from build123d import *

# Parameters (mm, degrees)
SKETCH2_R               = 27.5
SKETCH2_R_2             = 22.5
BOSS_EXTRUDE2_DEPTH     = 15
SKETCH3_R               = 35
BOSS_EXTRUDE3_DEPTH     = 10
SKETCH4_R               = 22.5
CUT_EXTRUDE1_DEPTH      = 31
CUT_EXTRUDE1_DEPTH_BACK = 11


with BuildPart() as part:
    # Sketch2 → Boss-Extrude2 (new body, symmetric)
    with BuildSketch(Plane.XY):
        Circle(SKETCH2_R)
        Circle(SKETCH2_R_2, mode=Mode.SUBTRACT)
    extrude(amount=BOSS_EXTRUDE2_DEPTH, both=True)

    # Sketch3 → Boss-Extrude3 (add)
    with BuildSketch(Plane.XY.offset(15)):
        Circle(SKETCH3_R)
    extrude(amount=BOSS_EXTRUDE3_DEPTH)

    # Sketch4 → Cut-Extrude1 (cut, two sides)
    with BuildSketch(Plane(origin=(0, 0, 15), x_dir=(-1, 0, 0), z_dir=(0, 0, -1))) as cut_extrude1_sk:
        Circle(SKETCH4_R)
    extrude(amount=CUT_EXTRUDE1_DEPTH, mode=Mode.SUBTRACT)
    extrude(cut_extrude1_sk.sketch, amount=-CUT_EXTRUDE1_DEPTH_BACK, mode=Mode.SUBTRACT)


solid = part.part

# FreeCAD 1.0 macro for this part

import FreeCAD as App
import Part
import Sketcher
Q = App.Units.Quantity

doc = App.newDocument("Part")
params = doc.addObject("Spreadsheet::Sheet", "Params")
for row, (alias, value) in enumerate([
    ("sketch1_diameter", "55 mm"),
    ("sketch1_diameter2", "45 mm"),
    ("pad1_length", "30 mm"),
    ("sketch2_diameter", "70 mm"),
    ("pad2_length", "10 mm"),
    ("sketch3_diameter", "45 mm"),
], start=1):
    params.set(f"A{row}", alias)
    params.set(f"B{row}", "=" + value)
    params.setAlias(f"B{row}", alias)

body = doc.addObject("PartDesign::Body", "Body")

# Sketch on XY plane
sketch1 = body.newObject("Sketcher::SketchObject", "Sketch")
sketch1.AttachmentSupport = (doc.getObject("XY_Plane"), [""])
sketch1.MapMode = "FlatFace"
sketch1.addGeometry(Part.Circle(App.Vector(0, 0, 0), App.Vector(0, 0, 1), 28), False)
sketch1.addGeometry(Part.Circle(App.Vector(0, 0, 0), App.Vector(0, 0, 1), 22), False)
sketch1.addConstraint(Sketcher.Constraint("Coincident", 0, 3, -1, 1))
sketch1.addConstraint(Sketcher.Constraint("Coincident", 1, 3, -1, 1))
sketch1.addConstraint(Sketcher.Constraint("Diameter", 0, Q("55 mm")))
sketch1.addConstraint(Sketcher.Constraint("Diameter", 1, Q("45 mm")))
sketch1.setExpression("Constraints[2]", "Params.sketch1_diameter")
sketch1.setExpression("Constraints[3]", "Params.sketch1_diameter2")
pad1 = body.newObject("PartDesign::Pad", "Pad")
pad1.Profile = sketch1
pad1.setExpression("Length", "Params.pad1_length")
pad1.Midplane = True

# Sketch on XY plane
sketch2 = body.newObject("Sketcher::SketchObject", "Sketch001")
sketch2.AttachmentSupport = (doc.getObject("XY_Plane"), [""])
sketch2.MapMode = "FlatFace"
sketch2.AttachmentOffset = App.Placement(App.Vector(0, 0, 15), App.Rotation())
sketch2.addGeometry(Part.Circle(App.Vector(0, 0, 0), App.Vector(0, 0, 1), 35), False)
sketch2.addConstraint(Sketcher.Constraint("Coincident", 0, 3, -1, 1))
sketch2.addConstraint(Sketcher.Constraint("Diameter", 0, Q("70 mm")))
sketch2.setExpression("Constraints[1]", "Params.sketch2_diameter")
pad2 = body.newObject("PartDesign::Pad", "Pad001")
pad2.Profile = sketch2
pad2.setExpression("Length", "Params.pad2_length")

# Sketch on XY plane
sketch3 = body.newObject("Sketcher::SketchObject", "Sketch002")
sketch3.AttachmentSupport = (doc.getObject("XY_Plane"), [""])
sketch3.MapMode = "FlatFace"
sketch3.AttachmentOffset = App.Placement(App.Vector(0, 0, 15), App.Rotation())
sketch3.addGeometry(Part.Circle(App.Vector(0, 0, 0), App.Vector(0, 0, 1), 22), False)
sketch3.addConstraint(Sketcher.Constraint("Coincident", 0, 3, -1, 1))
sketch3.addConstraint(Sketcher.Constraint("Diameter", 0, Q("45 mm")))
sketch3.setExpression("Constraints[1]", "Params.sketch3_diameter")
pocket1 = body.newObject("PartDesign::Pocket", "Pocket")
pocket1.Profile = sketch3
pocket1.Type = "ThroughAll"
pocket1.Midplane = True

doc.recompute()
